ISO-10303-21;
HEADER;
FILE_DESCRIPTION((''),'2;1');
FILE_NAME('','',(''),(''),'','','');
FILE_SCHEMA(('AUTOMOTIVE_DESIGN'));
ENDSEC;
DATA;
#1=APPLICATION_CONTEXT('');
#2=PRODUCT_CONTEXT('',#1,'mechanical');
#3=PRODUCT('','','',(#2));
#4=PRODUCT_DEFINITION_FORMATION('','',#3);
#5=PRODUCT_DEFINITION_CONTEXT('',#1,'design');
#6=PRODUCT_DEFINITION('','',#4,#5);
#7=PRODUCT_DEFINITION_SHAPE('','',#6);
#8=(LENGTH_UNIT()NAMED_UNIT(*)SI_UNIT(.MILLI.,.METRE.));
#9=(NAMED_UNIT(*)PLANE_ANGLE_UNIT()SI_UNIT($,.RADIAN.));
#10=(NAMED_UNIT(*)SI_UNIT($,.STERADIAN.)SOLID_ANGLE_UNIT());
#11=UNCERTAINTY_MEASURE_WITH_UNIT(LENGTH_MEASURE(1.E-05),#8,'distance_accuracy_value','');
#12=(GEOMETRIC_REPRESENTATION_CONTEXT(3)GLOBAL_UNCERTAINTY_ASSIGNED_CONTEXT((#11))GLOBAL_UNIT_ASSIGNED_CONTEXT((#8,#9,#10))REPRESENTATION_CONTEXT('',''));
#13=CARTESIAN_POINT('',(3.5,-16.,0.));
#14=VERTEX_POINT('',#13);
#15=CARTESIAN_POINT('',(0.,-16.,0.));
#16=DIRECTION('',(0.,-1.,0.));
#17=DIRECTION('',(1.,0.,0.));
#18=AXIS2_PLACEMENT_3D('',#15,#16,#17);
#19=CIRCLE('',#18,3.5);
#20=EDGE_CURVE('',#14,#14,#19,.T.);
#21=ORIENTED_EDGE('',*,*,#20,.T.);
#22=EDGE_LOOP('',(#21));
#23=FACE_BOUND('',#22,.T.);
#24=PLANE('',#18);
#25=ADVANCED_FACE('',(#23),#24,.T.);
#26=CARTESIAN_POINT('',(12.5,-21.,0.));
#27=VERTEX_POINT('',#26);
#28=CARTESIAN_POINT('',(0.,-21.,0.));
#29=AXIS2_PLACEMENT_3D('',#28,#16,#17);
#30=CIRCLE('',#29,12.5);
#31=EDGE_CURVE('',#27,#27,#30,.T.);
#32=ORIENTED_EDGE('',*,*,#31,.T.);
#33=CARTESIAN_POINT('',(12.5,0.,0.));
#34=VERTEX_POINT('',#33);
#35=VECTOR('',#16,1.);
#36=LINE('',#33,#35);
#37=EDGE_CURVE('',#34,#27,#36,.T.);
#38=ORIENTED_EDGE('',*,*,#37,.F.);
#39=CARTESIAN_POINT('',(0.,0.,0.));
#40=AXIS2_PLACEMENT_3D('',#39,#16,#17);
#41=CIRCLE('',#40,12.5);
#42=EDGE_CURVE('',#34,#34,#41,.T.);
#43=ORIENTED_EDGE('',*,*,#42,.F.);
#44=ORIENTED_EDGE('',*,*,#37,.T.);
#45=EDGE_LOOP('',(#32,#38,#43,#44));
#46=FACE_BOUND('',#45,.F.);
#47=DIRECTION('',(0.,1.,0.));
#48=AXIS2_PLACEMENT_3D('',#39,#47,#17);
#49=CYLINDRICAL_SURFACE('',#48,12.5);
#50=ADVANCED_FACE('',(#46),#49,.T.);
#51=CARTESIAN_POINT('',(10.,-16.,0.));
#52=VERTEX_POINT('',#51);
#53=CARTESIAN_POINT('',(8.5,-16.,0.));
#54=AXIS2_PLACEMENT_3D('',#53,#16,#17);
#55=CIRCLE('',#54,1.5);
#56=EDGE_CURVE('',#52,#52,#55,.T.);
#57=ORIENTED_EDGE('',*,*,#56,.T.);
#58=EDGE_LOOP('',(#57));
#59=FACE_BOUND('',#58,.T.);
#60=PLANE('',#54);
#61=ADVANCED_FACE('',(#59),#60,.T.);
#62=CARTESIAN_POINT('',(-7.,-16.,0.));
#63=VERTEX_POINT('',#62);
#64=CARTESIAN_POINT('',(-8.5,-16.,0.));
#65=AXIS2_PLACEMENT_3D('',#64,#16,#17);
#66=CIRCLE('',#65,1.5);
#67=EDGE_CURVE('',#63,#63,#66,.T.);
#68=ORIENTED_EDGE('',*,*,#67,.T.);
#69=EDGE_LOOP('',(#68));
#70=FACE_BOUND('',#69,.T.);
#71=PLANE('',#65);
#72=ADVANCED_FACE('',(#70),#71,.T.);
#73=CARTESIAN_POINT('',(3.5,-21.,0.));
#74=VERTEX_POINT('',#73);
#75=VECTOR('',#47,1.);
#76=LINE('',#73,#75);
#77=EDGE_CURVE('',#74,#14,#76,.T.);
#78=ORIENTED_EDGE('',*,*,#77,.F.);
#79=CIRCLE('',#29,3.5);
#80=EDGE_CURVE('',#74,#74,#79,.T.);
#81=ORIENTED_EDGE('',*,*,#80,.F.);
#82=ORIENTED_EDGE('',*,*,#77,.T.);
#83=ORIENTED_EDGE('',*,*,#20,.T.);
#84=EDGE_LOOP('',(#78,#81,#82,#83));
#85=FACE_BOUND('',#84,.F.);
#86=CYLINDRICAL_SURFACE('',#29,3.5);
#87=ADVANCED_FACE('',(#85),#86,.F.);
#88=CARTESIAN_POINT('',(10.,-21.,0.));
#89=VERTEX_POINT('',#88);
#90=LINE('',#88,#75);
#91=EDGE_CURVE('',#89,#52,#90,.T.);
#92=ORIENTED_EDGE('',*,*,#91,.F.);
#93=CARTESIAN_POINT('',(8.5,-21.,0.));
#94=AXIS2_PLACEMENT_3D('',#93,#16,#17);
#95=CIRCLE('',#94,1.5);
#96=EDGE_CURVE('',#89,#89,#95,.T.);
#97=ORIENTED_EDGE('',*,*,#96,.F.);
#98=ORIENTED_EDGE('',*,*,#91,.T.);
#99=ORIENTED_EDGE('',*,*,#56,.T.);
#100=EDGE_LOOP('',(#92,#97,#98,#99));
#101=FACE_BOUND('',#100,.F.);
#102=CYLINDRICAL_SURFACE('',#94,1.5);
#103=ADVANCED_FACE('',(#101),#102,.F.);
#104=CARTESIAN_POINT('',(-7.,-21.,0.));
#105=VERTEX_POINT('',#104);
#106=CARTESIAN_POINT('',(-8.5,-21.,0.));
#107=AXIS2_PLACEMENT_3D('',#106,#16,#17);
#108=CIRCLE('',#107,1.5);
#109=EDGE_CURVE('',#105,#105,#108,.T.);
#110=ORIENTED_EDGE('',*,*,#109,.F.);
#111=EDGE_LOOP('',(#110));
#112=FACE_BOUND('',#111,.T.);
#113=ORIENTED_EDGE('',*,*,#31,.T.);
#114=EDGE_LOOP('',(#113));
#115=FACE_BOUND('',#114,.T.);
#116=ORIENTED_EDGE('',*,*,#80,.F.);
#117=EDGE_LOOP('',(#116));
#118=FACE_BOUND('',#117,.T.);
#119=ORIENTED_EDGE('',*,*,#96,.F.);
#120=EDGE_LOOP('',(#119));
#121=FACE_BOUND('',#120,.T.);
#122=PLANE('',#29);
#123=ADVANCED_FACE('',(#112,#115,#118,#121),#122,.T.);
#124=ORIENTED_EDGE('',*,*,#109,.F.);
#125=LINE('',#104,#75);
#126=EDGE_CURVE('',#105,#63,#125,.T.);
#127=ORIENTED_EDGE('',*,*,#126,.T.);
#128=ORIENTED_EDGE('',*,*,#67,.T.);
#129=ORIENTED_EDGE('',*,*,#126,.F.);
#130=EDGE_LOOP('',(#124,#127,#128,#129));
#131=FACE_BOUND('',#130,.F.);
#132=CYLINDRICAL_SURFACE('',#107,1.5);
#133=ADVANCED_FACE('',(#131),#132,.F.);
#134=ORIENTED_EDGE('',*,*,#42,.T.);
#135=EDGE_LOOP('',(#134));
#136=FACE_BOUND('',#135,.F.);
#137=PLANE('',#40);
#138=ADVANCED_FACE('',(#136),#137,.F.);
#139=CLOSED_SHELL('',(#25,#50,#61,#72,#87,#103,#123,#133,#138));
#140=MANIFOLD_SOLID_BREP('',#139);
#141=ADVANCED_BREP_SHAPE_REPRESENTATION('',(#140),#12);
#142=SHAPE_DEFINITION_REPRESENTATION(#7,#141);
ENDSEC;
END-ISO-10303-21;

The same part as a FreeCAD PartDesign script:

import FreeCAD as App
import Part
import Sketcher
Q = App.Units.Quantity

doc = App.newDocument("Part")
body = doc.addObject("PartDesign::Body", "Body")

sketch1 = body.newObject("Sketcher::SketchObject", "Sketch")
sketch1.AttachmentSupport = (doc.getObject("XZ_Plane"), [""])
sketch1.MapMode = "FlatFace"
sketch1.addGeometry(Part.Circle(App.Vector(0, 0, 0), App.Vector(0, 0, 1), 12), False)
sketch1.addConstraint(Sketcher.Constraint("Coincident", 0, 3, -1, 1))
sketch1.addConstraint(Sketcher.Constraint("Diameter", 0, Q("25 mm")))
pad1 = body.newObject("PartDesign::Pad", "Pad")
pad1.Profile = sketch1
pad1.Length = 21

sketch2 = body.newObject("Sketcher::SketchObject", "Sketch001")
sketch2.AttachmentSupport = (doc.getObject("XZ_Plane"), [""])
sketch2.MapMode = "FlatFace"
sketch2.AttachmentOffset = App.Placement(App.Vector(0, 0, 21), App.Rotation())
sketch2.addGeometry(Part.Circle(App.Vector(-8.5, 0, 0), App.Vector(0, 0, 1), 1.5), False)
sketch2.addGeometry(Part.Circle(App.Vector(8.5, 0, 0), App.Vector(0, 0, 1), 1.5), False)
sketch2.addGeometry(Part.Circle(App.Vector(0, 0, 0), App.Vector(0, 0, 1), 3.5), False)
sketch2.addConstraint(Sketcher.Constraint("Coincident", 2, 3, -1, 1))
sketch2.addConstraint(Sketcher.Constraint("Equal", 0, 1))
sketch2.addConstraint(Sketcher.Constraint("Symmetric", 0, 3, 1, 3, -1, 1))
sketch2.addConstraint(Sketcher.Constraint("PointOnObject", 0, 3, -1))
sketch2.addConstraint(Sketcher.Constraint("Diameter", 0, Q("3 mm")))
sketch2.addConstraint(Sketcher.Constraint("Diameter", 2, Q("7 mm")))
sketch2.addConstraint(Sketcher.Constraint("DistanceX", 0, 3, 1, 3, Q("17 mm")))
pocket1 = body.newObject("PartDesign::Pocket", "Pocket")
pocket1.Profile = sketch2
pocket1.Length = 5

doc.recompute()
